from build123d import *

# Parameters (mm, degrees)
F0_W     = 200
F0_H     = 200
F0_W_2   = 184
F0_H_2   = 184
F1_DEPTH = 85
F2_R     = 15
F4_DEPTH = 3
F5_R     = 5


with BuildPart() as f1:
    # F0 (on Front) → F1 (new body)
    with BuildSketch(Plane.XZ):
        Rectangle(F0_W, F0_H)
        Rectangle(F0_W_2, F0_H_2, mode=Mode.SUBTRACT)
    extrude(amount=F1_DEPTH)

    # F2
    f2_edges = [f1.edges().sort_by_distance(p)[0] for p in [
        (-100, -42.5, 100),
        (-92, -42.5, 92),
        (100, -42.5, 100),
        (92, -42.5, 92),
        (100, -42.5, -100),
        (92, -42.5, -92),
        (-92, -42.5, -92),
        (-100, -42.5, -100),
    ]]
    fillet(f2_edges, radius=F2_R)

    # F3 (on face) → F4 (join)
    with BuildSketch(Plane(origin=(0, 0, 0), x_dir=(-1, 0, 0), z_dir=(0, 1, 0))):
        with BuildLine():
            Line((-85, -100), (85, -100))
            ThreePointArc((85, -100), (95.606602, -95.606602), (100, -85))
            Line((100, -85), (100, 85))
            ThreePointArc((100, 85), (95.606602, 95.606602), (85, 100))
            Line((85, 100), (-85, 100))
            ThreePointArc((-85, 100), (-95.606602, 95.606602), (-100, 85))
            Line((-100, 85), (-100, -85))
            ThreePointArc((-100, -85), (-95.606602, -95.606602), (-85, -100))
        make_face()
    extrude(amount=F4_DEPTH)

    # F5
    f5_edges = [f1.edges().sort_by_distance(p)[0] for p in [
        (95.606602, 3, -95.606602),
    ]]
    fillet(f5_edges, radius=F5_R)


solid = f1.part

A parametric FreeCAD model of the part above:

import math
import FreeCAD as App
import Part
import Sketcher
from FreeCAD import Vector
Q = App.Units.Quantity


def edges_at(feature, points):
    """Names of the edges that pass closest to the given points."""
    edges = feature.Shape.Edges
    near = lambda p: min(range(len(edges)), key=lambda i: edges[i].distToShape(Part.Vertex(*p))[0])
    return sorted({f"Edge{near(p) + 1}" for p in points})

doc = App.newDocument("Part")
body = doc.addObject("PartDesign::Body", "Body")

# Sketch on XZ plane
sketch1 = body.newObject("Sketcher::SketchObject", "Sketch")
sketch1.AttachmentSupport = (doc.getObject("XZ_Plane"), [""])
sketch1.MapMode = "FlatFace"
sketch1.addGeometry([
    Part.LineSegment(Vector(-100, 100, 0), Vector(-100, -100, 0)),  # 0
    Part.LineSegment(Vector(-100, -100, 0), Vector(100, -100, 0)),  # 1
    Part.LineSegment(Vector(100, -100, 0), Vector(100, 100, 0)),  # 2
    Part.LineSegment(Vector(100, 100, 0), Vector(-100, 100, 0)),  # 3
    Part.LineSegment(Vector(92, -92, 0), Vector(-92, -92, 0)),  # 4
    Part.LineSegment(Vector(-92, -92, 0), Vector(-92, 92, 0)),  # 5
    Part.LineSegment(Vector(-92, 92, 0), Vector(92, 92, 0)),  # 6
    Part.LineSegment(Vector(92, 92, 0), Vector(92, -92, 0)),  # 7
], False)
sketch1.addConstraint([
    Sketcher.Constraint("Coincident", 0, 2, 1, 1),
    Sketcher.Constraint("Coincident", 1, 2, 2, 1),
    Sketcher.Constraint("Coincident", 2, 2, 3, 1),
    Sketcher.Constraint("Coincident", 3, 2, 0, 1),
    Sketcher.Constraint("Coincident", 4, 2, 5, 1),
    Sketcher.Constraint("Coincident", 5, 2, 6, 1),
    Sketcher.Constraint("Coincident", 6, 2, 7, 1),
    Sketcher.Constraint("Coincident", 7, 2, 4, 1),
    Sketcher.Constraint("Vertical", 0),
    Sketcher.Constraint("Horizontal", 1),
    Sketcher.Constraint("Vertical", 2),
    Sketcher.Constraint("Horizontal", 3),
    Sketcher.Constraint("Horizontal", 4),
    Sketcher.Constraint("Vertical", 5),
    Sketcher.Constraint("Horizontal", 6),
    Sketcher.Constraint("Vertical", 7),
    Sketcher.Constraint("Symmetric", 0, 2, 2, 2, -1, 1),
    Sketcher.Constraint("Symmetric", 4, 2, 6, 2, -1, 1),
    Sketcher.Constraint("Equal", 3, 0),
    Sketcher.Constraint("Equal", 6, 5),
    Sketcher.Constraint("DistanceX", 1, 1, 1, 2, Q("200 mm")),
    Sketcher.Constraint("DistanceX", 4, 2, 4, 1, Q("184 mm")),
])
pad1 = body.newObject("PartDesign::Pad", "Pad")
pad1.Profile = sketch1
pad1.Length = 85
doc.recompute()

fillet = body.newObject("PartDesign::Fillet", "Fillet")
fillet.Base = (pad1, edges_at(pad1, [
    (-100, -42.5, 100),
    (-92, -42.5, 92),
    (100, -42.5, 100),
    (92, -42.5, 92),
    (100, -42.5, -100),
    (92, -42.5, -92),
    (-92, -42.5, -92),
    (-100, -42.5, -100),
]))
fillet.Radius = 15

# Sketch on XZ plane
sketch2 = body.newObject("Sketcher::SketchObject", "Sketch001")
sketch2.AttachmentSupport = (doc.getObject("XZ_Plane"), [""])
sketch2.MapMode = "FlatFace"
sketch2.addGeometry([
    Part.LineSegment(Vector(85, -100, 0), Vector(-85, -100, 0)),  # 0
    Part.ArcOfCircle(Part.Circle(Vector(-85, -85, 0), Vector(0, 0, 1), 15), math.radians(180), math.radians(270)),  # 1
    Part.LineSegment(Vector(-100, -85, 0), Vector(-100, 85, 0)),  # 2
    Part.ArcOfCircle(Part.Circle(Vector(-85, 85, 0), Vector(0, 0, 1), 15), math.radians(90), math.radians(180)),  # 3
    Part.LineSegment(Vector(-85, 100, 0), Vector(85, 100, 0)),  # 4
    Part.ArcOfCircle(Part.Circle(Vector(85, 85, 0), Vector(0, 0, 1), 15), math.radians(0), math.radians(90)),  # 5
    Part.LineSegment(Vector(100, 85, 0), Vector(100, -85, 0)),  # 6
    Part.ArcOfCircle(Part.Circle(Vector(85, -85, 0), Vector(0, 0, 1), 15), math.radians(-90), math.radians(0)),  # 7
], False)
sketch2.addConstraint([
    Sketcher.Constraint("Tangent", 0, 2, 1, 2),
    Sketcher.Constraint("Tangent", 1, 1, 2, 1),
    Sketcher.Constraint("Tangent", 2, 2, 3, 2),
    Sketcher.Constraint("Tangent", 3, 1, 4, 1),
    Sketcher.Constraint("Tangent", 4, 2, 5, 2),
    Sketcher.Constraint("Tangent", 5, 1, 6, 1),
    Sketcher.Constraint("Tangent", 6, 2, 7, 2),
    Sketcher.Constraint("Tangent", 7, 1, 0, 1),
    Sketcher.Constraint("Horizontal", 0),
    Sketcher.Constraint("Vertical", 2),
    Sketcher.Constraint("Horizontal", 4),
    Sketcher.Constraint("Vertical", 6),
    Sketcher.Constraint("Equal", 1, 3),
    Sketcher.Constraint("Equal", 3, 5),
    Sketcher.Constraint("Equal", 5, 7),
    Sketcher.Constraint("Symmetric", 1, 3, 5, 3, -1, 1),
    Sketcher.Constraint("Equal", 4, 2),
    Sketcher.Constraint("Radius", 1, Q("14.999999 mm")),
    Sketcher.Constraint("DistanceX", 0, 2, 0, 1, Q("170 mm")),
])
pad2 = body.newObject("PartDesign::Pad", "Pad001")
pad2.Profile = sketch2
pad2.Length = 3
pad2.Reversed = True
doc.recompute()

fillet2 = body.newObject("PartDesign::Fillet", "Fillet001")
fillet2.Base = (pad2, edges_at(pad2, [(95.607, 3, -95.607)]))
fillet2.Radius = 5

doc.recompute()
